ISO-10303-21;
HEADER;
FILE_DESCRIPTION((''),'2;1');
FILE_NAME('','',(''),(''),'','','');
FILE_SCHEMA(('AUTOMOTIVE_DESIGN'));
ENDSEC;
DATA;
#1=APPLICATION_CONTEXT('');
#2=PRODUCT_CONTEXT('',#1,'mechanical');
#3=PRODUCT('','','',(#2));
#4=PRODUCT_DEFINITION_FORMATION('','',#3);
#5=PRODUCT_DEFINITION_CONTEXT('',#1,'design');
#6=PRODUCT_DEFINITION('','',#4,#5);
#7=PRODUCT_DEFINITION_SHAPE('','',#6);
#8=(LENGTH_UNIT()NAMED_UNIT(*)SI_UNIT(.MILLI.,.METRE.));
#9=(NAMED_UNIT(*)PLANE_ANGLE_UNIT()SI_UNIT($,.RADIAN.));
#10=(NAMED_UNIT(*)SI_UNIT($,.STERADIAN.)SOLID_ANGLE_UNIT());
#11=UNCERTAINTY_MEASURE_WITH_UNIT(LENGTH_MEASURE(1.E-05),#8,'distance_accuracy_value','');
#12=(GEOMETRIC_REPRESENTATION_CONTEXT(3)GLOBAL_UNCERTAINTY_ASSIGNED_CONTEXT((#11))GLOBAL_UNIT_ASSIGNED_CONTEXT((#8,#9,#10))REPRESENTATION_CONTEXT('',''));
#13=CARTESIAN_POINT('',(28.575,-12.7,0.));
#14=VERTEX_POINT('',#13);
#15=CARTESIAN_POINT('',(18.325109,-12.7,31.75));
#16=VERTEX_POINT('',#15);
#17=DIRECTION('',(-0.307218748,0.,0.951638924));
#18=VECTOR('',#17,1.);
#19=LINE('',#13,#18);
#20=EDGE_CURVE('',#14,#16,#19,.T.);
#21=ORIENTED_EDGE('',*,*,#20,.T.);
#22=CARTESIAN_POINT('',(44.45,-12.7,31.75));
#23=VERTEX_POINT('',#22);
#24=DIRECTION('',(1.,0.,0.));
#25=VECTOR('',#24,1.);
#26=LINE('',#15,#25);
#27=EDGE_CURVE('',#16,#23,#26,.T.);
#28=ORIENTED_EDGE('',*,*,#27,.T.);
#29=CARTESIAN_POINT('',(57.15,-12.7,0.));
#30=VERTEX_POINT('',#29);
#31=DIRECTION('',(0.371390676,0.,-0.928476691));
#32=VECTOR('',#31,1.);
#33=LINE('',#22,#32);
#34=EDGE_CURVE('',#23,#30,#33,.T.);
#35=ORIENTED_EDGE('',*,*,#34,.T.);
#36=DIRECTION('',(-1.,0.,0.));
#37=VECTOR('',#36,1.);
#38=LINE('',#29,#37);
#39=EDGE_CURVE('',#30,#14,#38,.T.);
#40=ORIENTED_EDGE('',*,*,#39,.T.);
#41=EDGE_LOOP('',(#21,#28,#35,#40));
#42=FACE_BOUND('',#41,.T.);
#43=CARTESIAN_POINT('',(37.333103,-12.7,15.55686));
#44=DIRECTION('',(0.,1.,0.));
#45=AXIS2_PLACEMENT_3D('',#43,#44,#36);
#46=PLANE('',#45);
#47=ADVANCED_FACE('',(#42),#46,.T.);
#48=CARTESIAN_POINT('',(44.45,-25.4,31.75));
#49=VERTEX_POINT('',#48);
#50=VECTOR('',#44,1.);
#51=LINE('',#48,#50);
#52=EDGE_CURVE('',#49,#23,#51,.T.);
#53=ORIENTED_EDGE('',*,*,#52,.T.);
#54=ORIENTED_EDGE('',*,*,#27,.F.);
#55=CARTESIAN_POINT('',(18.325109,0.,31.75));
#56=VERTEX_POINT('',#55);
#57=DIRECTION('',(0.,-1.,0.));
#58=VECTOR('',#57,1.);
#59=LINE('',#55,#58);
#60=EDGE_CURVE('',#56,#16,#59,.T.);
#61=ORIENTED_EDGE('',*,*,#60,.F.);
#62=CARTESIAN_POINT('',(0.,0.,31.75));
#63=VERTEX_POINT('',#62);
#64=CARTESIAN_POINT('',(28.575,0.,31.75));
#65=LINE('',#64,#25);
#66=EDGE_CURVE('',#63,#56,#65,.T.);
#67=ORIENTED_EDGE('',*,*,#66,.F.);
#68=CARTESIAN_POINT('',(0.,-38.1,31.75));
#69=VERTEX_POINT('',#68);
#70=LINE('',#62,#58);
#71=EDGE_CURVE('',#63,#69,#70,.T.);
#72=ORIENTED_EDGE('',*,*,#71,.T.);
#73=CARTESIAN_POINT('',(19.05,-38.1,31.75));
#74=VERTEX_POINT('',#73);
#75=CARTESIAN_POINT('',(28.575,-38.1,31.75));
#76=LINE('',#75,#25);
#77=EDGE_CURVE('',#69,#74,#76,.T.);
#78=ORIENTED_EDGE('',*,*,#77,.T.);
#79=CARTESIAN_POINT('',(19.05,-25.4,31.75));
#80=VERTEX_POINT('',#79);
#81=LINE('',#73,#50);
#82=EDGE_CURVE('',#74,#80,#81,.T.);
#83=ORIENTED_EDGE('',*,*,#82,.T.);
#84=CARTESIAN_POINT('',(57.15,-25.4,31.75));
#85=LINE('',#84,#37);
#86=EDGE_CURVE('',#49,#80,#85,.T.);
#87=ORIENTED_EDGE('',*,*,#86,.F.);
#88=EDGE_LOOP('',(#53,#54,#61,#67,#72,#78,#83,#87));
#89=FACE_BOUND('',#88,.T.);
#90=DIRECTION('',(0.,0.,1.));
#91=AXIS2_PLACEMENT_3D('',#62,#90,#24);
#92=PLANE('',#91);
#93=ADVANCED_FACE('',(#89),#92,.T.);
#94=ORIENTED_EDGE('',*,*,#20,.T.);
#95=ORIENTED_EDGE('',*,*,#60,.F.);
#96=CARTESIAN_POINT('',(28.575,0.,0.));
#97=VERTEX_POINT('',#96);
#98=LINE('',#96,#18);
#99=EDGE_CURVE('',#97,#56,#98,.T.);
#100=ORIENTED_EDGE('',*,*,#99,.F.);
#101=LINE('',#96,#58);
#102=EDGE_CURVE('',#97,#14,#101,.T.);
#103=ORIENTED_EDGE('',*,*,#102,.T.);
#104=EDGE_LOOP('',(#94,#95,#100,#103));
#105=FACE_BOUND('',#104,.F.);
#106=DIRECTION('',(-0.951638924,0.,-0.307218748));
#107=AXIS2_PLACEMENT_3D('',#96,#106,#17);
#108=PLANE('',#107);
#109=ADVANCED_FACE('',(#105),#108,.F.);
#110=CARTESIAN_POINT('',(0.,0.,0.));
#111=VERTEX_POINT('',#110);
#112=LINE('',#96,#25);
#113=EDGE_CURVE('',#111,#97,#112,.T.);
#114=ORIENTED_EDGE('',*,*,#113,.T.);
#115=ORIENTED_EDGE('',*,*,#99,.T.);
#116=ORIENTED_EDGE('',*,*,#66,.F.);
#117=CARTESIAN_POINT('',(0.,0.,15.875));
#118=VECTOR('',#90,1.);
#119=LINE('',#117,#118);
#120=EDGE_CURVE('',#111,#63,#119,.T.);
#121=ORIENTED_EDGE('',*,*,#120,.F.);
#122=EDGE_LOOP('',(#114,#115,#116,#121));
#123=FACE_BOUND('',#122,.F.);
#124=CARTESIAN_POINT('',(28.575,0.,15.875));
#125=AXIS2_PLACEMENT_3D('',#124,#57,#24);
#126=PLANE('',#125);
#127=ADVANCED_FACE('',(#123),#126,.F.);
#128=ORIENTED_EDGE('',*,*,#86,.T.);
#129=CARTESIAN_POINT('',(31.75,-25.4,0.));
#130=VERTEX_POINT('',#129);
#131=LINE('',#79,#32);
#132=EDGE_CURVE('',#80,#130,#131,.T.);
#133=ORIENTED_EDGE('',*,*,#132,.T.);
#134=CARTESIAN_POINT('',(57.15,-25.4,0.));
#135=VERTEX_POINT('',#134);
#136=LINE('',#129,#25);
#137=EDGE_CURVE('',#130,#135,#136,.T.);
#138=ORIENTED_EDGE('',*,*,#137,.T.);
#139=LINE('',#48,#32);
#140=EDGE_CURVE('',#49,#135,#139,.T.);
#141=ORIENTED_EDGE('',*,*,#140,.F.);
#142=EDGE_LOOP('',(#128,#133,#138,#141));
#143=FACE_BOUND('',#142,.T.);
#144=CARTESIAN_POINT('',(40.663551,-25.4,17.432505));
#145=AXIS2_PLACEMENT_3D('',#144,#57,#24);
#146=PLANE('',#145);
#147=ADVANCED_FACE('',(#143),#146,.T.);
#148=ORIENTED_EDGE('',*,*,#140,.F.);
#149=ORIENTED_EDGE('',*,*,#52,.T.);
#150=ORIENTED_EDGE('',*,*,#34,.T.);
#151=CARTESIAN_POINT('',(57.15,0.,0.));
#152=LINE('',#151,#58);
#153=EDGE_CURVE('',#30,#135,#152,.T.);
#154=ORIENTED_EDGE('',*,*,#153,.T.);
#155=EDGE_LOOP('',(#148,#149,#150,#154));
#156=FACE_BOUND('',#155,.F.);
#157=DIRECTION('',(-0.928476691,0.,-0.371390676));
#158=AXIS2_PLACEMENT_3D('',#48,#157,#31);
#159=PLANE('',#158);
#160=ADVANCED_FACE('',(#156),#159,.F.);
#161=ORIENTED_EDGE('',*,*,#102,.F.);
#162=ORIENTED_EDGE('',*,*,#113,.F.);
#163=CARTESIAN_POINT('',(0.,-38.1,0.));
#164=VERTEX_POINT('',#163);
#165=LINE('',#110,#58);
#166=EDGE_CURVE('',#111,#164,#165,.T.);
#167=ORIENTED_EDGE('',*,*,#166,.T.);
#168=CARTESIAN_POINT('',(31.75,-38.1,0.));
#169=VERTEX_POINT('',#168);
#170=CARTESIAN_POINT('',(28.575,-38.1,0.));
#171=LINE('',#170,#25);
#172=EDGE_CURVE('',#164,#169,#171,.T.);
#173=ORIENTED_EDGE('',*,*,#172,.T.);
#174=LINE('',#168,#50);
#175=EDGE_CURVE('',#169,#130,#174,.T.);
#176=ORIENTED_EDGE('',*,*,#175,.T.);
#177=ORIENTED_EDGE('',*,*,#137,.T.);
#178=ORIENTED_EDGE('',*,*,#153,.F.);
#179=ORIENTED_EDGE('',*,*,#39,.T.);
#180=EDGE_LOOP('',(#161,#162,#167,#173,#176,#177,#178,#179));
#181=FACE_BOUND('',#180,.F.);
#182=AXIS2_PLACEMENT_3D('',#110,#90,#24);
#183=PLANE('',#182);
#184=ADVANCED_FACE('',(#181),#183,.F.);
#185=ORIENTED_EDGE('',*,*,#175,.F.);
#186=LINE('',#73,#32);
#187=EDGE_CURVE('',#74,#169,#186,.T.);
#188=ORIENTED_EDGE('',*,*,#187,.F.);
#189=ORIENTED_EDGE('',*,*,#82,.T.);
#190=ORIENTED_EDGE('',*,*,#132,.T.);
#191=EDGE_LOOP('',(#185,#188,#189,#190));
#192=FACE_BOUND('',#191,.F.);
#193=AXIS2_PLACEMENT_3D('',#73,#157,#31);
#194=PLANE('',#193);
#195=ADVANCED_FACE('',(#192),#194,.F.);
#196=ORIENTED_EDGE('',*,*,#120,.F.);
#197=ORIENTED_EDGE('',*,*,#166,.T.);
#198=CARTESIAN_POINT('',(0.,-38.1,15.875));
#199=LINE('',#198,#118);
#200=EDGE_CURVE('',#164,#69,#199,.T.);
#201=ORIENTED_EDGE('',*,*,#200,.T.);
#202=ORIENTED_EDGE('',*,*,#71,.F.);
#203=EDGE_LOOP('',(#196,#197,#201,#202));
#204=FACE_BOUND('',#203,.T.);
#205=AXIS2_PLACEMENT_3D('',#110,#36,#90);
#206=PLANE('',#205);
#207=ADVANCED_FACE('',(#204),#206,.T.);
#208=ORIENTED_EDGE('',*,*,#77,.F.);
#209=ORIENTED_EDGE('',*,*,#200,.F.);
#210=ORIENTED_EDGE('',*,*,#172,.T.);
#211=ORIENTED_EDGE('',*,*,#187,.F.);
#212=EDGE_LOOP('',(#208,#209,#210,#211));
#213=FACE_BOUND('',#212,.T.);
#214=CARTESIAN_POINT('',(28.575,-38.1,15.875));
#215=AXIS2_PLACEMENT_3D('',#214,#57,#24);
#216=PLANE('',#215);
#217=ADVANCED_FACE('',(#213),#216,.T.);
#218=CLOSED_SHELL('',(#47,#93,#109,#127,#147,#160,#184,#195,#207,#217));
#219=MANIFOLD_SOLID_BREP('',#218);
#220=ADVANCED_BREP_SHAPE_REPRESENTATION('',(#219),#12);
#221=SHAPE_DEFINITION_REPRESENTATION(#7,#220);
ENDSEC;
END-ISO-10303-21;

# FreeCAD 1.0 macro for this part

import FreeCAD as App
import Part
import Sketcher
from FreeCAD import Vector
Q = App.Units.Quantity

doc = App.newDocument("Part")
body = doc.addObject("PartDesign::Body", "Body")

# Sketch on XZ plane
sketch1 = body.newObject("Sketcher::SketchObject", "Sketch")
sketch1.AttachmentSupport = (doc.getObject("XZ_Plane"), [""])
sketch1.MapMode = "FlatFace"
sketch1.addGeometry(Part.LineSegment(Vector(0, 32, 0), Vector(0, 0, 0)), False)
sketch1.addGeometry(Part.LineSegment(Vector(0, 0, 0), Vector(57, 0, 0)), False)
sketch1.addGeometry(Part.LineSegment(Vector(57, 0, 0), Vector(57, 32, 0)), False)
sketch1.addGeometry(Part.LineSegment(Vector(57, 32, 0), Vector(0, 32, 0)), False)
sketch1.addConstraint(Sketcher.Constraint("Coincident", 0, 2, 1, 1))
sketch1.addConstraint(Sketcher.Constraint("Coincident", 1, 2, 2, 1))
sketch1.addConstraint(Sketcher.Constraint("Coincident", 2, 2, 3, 1))
sketch1.addConstraint(Sketcher.Constraint("Coincident", 3, 2, 0, 1))
sketch1.addConstraint(Sketcher.Constraint("Vertical", 0))
sketch1.addConstraint(Sketcher.Constraint("Horizontal", 1))
sketch1.addConstraint(Sketcher.Constraint("Vertical", 2))
sketch1.addConstraint(Sketcher.Constraint("Horizontal", 3))
sketch1.addConstraint(Sketcher.Constraint("Coincident", 0, 2, -1, 1))
sketch1.addConstraint(Sketcher.Constraint("DistanceX", 1, 1, 1, 2, Q("2.25 in")))
sketch1.addConstraint(Sketcher.Constraint("DistanceY", 0, 2, 0, 1, Q("1.25 in")))
pad1 = body.newObject("PartDesign::Pad", "Pad")
pad1.Profile = sketch1
pad1.Length = Q("1.5 in")

# Sketch on XZ plane
sketch2 = body.newObject("Sketcher::SketchObject", "Sketch001")
sketch2.AttachmentSupport = (doc.getObject("XZ_Plane"), [""])
sketch2.MapMode = "FlatFace"
sketch2.AttachmentOffset = App.Placement(Vector(0, 0, 1.5 * 25.4), App.Rotation())
sketch2.addGeometry(Part.LineSegment(Vector(57, 32, 0), Vector(19, 32, 0)), False)
sketch2.addGeometry(Part.LineSegment(Vector(19, 32, 0), Vector(32, 0, 0)), False)
sketch2.addGeometry(Part.LineSegment(Vector(32, 0, 0), Vector(57, 0, 0)), False)
sketch2.addGeometry(Part.LineSegment(Vector(57, 0, 0), Vector(57, 32, 0)), False)
sketch2.addConstraint(Sketcher.Constraint("Coincident", 0, 2, 1, 1))
sketch2.addConstraint(Sketcher.Constraint("Coincident", 1, 2, 2, 1))
sketch2.addConstraint(Sketcher.Constraint("Coincident", 2, 2, 3, 1))
sketch2.addConstraint(Sketcher.Constraint("Coincident", 3, 2, 0, 1))
sketch2.addConstraint(Sketcher.Constraint("Horizontal", 0))
sketch2.addConstraint(Sketcher.Constraint("Horizontal", 2))
sketch2.addConstraint(Sketcher.Constraint("Vertical", 3))
sketch2.addConstraint(Sketcher.Constraint("PointOnObject", 1, 2, -1))
sketch2.addConstraint(Sketcher.Constraint("DistanceX", 2, 1, 2, 2, Q("1 in")))
sketch2.addConstraint(Sketcher.Constraint("DistanceX", 0, 2, 0, 1, Q("1.5 in")))
sketch2.addConstraint(Sketcher.Constraint("DistanceY", 3, 1, 3, 2, Q("1.25 in")))
sketch2.addConstraint(Sketcher.Constraint("DistanceX", -1, 1, 0, 2, Q("0.75 in")))
pocket1 = body.newObject("PartDesign::Pocket", "Pocket")
pocket1.Profile = sketch2
pocket1.Length = Q("0.5 in")

# Sketch on XZ plane
sketch3 = body.newObject("Sketcher::SketchObject", "Sketch002")
sketch3.AttachmentSupport = (doc.getObject("XZ_Plane"), [""])
sketch3.MapMode = "FlatFace"
sketch3.AttachmentOffset = App.Placement(Vector(0, 0, 1 * 25.4), App.Rotation())
sketch3.addGeometry(Part.LineSegment(Vector(57, 32, 0), Vector(44, 32, 0)), False)
sketch3.addGeometry(Part.LineSegment(Vector(44, 32, 0), Vector(57, 0, 0)), False)
sketch3.addGeometry(Part.LineSegment(Vector(57, 0, 0), Vector(57, 32, 0)), False)
sketch3.addConstraint(Sketcher.Constraint("Coincident", 0, 2, 1, 1))
sketch3.addConstraint(Sketcher.Constraint("Coincident", 1, 2, 2, 1))
sketch3.addConstraint(Sketcher.Constraint("Coincident", 2, 2, 0, 1))
sketch3.addConstraint(Sketcher.Constraint("Horizontal", 0))
sketch3.addConstraint(Sketcher.Constraint("Vertical", 2))
sketch3.addConstraint(Sketcher.Constraint("PointOnObject", 1, 2, -1))
sketch3.addConstraint(Sketcher.Constraint("DistanceX", 0, 2, 0, 1, Q("0.5 in")))
sketch3.addConstraint(Sketcher.Constraint("DistanceY", 2, 1, 2, 2, Q("1.25 in")))
sketch3.addConstraint(Sketcher.Constraint("DistanceX", -1, 1, 0, 2, Q("1.75 in")))
pocket2 = body.newObject("PartDesign::Pocket", "Pocket001")
pocket2.Profile = sketch3
pocket2.Length = Q("1 in")

# Sketch on XZ plane
sketch4 = body.newObject("Sketcher::SketchObject", "Sketch003")
sketch4.AttachmentSupport = (doc.getObject("XZ_Plane"), [""])
sketch4.MapMode = "FlatFace"
sketch4.addGeometry(Part.LineSegment(Vector(29, 0, 0), Vector(18, 32, 0)), False)
sketch4.addGeometry(Part.LineSegment(Vector(18, 32, 0), Vector(44, 32, 0)), False)
sketch4.addGeometry(Part.LineSegment(Vector(44, 32, 0), Vector(57, 0, 0)), False)
sketch4.addGeometry(Part.LineSegment(Vector(57, 0, 0), Vector(29, 0, 0)), False)
sketch4.addConstraint(Sketcher.Constraint("Coincident", 0, 2, 1, 1))
sketch4.addConstraint(Sketcher.Constraint("Coincident", 1, 2, 2, 1))
sketch4.addConstraint(Sketcher.Constraint("Coincident", 2, 2, 3, 1))
sketch4.addConstraint(Sketcher.Constraint("Coincident", 3, 2, 0, 1))
sketch4.addConstraint(Sketcher.Constraint("Horizontal", 1))
sketch4.addConstraint(Sketcher.Constraint("Horizontal", 3))
sketch4.addConstraint(Sketcher.Constraint("PointOnObject", 2, 2, -1))
sketch4.addConstraint(Sketcher.Constraint("DistanceX", 1, 2, 2, 2, Q("0.5 in")))
sketch4.addConstraint(Sketcher.Constraint("DistanceX", 3, 2, 3, 1, Q("1.125 in")))
sketch4.addConstraint(Sketcher.Constraint("DistanceY", -1, 1, 0, 2, Q("1.25 in")))
sketch4.addConstraint(Sketcher.Constraint("DistanceX", -1, 1, 1, 2, Q("1.75 in")))
sketch4.addConstraint(Sketcher.Constraint("DistanceX", 1, 1, 1, 2, Q("26.124891 mm")))
pocket3 = body.newObject("PartDesign::Pocket", "Pocket002")
pocket3.Profile = sketch4
pocket3.Length = Q("0.5 in")
pocket3.Reversed = True

doc.recompute()
